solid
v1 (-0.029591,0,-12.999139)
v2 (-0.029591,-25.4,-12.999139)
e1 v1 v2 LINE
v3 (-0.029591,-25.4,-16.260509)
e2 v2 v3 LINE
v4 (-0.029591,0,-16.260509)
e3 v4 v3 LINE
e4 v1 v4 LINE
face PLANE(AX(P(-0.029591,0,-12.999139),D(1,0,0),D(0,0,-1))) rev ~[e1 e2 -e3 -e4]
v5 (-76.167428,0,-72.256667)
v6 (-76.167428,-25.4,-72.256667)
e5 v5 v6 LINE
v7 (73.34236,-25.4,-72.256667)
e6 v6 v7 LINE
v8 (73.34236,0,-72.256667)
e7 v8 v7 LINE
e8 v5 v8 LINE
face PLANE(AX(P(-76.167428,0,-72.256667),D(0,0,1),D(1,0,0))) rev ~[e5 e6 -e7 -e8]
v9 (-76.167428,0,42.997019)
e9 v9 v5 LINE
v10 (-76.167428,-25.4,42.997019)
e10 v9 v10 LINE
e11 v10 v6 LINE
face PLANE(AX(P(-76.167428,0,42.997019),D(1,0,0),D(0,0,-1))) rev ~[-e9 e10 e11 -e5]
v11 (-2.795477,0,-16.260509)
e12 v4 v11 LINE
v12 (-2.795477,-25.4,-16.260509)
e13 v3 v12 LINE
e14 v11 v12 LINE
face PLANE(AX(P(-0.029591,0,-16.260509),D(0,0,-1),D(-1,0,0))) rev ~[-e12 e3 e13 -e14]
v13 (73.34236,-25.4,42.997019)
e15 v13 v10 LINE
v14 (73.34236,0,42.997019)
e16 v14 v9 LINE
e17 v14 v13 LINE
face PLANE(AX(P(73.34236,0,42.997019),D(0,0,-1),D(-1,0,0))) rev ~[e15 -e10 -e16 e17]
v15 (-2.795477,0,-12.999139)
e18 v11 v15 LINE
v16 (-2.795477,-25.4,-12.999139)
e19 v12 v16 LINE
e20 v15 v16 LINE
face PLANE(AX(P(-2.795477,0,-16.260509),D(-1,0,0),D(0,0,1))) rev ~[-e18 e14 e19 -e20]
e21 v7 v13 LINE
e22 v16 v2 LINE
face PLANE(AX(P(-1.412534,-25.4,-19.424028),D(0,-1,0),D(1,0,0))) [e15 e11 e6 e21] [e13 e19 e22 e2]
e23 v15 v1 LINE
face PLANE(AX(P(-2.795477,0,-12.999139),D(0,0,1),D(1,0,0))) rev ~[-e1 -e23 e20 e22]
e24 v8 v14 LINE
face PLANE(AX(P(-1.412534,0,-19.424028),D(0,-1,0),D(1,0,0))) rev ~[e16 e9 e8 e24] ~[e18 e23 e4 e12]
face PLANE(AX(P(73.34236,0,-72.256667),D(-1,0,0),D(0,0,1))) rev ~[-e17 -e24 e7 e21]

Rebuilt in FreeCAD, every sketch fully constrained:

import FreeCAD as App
import Part
import Sketcher
from FreeCAD import Vector
Q = App.Units.Quantity

doc = App.newDocument("Part")
body = doc.addObject("PartDesign::Body", "Body")

# Sketch on XZ plane
sketch1 = body.newObject("Sketcher::SketchObject", "Sketch")
sketch1.AttachmentSupport = (doc.getObject("XZ_Plane"), [""])
sketch1.MapMode = "FlatFace"
sketch1.addGeometry(Part.LineSegment(Vector(73, -72, 0), Vector(73, 43, 0)), False)
sketch1.addGeometry(Part.LineSegment(Vector(73, 43, 0), Vector(-76, 43, 0)), False)
sketch1.addGeometry(Part.LineSegment(Vector(-76, 43, 0), Vector(-76, -72, 0)), False)
sketch1.addGeometry(Part.LineSegment(Vector(-76, -72, 0), Vector(73, -72, 0)), False)
sketch1.addGeometry(Part.LineSegment(Vector(-67, 33, 0), Vector(64, 33, 0)), False)
sketch1.addGeometry(Part.LineSegment(Vector(64, 33, 0), Vector(64, -62, 0)), False)
sketch1.addGeometry(Part.LineSegment(Vector(64, -62, 0), Vector(-67, -62, 0)), False)
sketch1.addGeometry(Part.LineSegment(Vector(-67, -62, 0), Vector(-67, 33, 0)), False)
sketch1.addConstraint(Sketcher.Constraint("Coincident", 0, 2, 1, 1))
sketch1.addConstraint(Sketcher.Constraint("Coincident", 1, 2, 2, 1))
sketch1.addConstraint(Sketcher.Constraint("Coincident", 2, 2, 3, 1))
sketch1.addConstraint(Sketcher.Constraint("Coincident", 3, 2, 0, 1))
sketch1.addConstraint(Sketcher.Constraint("Coincident", 4, 2, 5, 1))
sketch1.addConstraint(Sketcher.Constraint("Coincident", 5, 2, 6, 1))
sketch1.addConstraint(Sketcher.Constraint("Coincident", 6, 2, 7, 1))
sketch1.addConstraint(Sketcher.Constraint("Coincident", 7, 2, 4, 1))
sketch1.addConstraint(Sketcher.Constraint("Vertical", 0))
sketch1.addConstraint(Sketcher.Constraint("Horizontal", 1))
sketch1.addConstraint(Sketcher.Constraint("Vertical", 2))
sketch1.addConstraint(Sketcher.Constraint("Horizontal", 3))
sketch1.addConstraint(Sketcher.Constraint("Horizontal", 4))
sketch1.addConstraint(Sketcher.Constraint("Vertical", 5))
sketch1.addConstraint(Sketcher.Constraint("Horizontal", 6))
sketch1.addConstraint(Sketcher.Constraint("Vertical", 7))
sketch1.addConstraint(Sketcher.Constraint("DistanceY", 5, 2, 5, 1, Q("3.7656999 in")))
sketch1.addConstraint(Sketcher.Constraint("DistanceX", 1, 2, 1, 1, Q("149.509789 mm")))
sketch1.addConstraint(Sketcher.Constraint("DistanceX", 4, 1, 4, 2, Q("130.760355 mm")))
sketch1.addConstraint(Sketcher.Constraint("DistanceY", 0, 1, 0, 2, Q("115.253685 mm")))
sketch1.addConstraint(Sketcher.Constraint("DistanceX", -1, 1, 0, 2, Q("73.34236 mm")))
sketch1.addConstraint(Sketcher.Constraint("DistanceY", -1, 1, 0, 2, Q("42.997019 mm")))
sketch1.addConstraint(Sketcher.Constraint("DistanceX", 6, 2, -1, 1, Q("66.792711 mm")))
sketch1.addConstraint(Sketcher.Constraint("DistanceY", 3, 2, 4, 2, Q("105.451231 mm")))
pad1 = body.newObject("PartDesign::Pad", "Pad")
pad1.Profile = sketch1
pad1.Length = Q("1 in")

# Sketch on XZ plane
sketch2 = body.newObject("Sketcher::SketchObject", "Sketch001")
sketch2.AttachmentSupport = (doc.getObject("XZ_Plane"), [""])
sketch2.MapMode = "FlatFace"
sketch2.addGeometry(Part.LineSegment(Vector(64, -62, 0), Vector(64, 33, 0)), False)
sketch2.addGeometry(Part.LineSegment(Vector(64, 33, 0), Vector(-67, 33, 0)), False)
sketch2.addGeometry(Part.LineSegment(Vector(-67, 33, 0), Vector(-67, -62, 0)), False)
sketch2.addGeometry(Part.LineSegment(Vector(-67, -62, 0), Vector(64, -62, 0)), False)
sketch2.addGeometry(Part.LineSegment(Vector(-57, 24, 0), Vector(54, 24, 0)), False)
sketch2.addGeometry(Part.LineSegment(Vector(54, 24, 0), Vector(54, -53, 0)), False)
sketch2.addGeometry(Part.LineSegment(Vector(54, -53, 0), Vector(-57, -53, 0)), False)
sketch2.addGeometry(Part.LineSegment(Vector(-57, -53, 0), Vector(-57, 24, 0)), False)
sketch2.addConstraint(Sketcher.Constraint("Coincident", 0, 2, 1, 1))
sketch2.addConstraint(Sketcher.Constraint("Coincident", 1, 2, 2, 1))
sketch2.addConstraint(Sketcher.Constraint("Coincident", 2, 2, 3, 1))
sketch2.addConstraint(Sketcher.Constraint("Coincident", 3, 2, 0, 1))
sketch2.addConstraint(Sketcher.Constraint("Coincident", 4, 2, 5, 1))
sketch2.addConstraint(Sketcher.Constraint("Coincident", 5, 2, 6, 1))
sketch2.addConstraint(Sketcher.Constraint("Coincident", 6, 2, 7, 1))
sketch2.addConstraint(Sketcher.Constraint("Coincident", 7, 2, 4, 1))
sketch2.addConstraint(Sketcher.Constraint("Vertical", 0))
sketch2.addConstraint(Sketcher.Constraint("Horizontal", 1))
sketch2.addConstraint(Sketcher.Constraint("Vertical", 2))
sketch2.addConstraint(Sketcher.Constraint("Horizontal", 3))
sketch2.addConstraint(Sketcher.Constraint("Horizontal", 4))
sketch2.addConstraint(Sketcher.Constraint("Vertical", 5))
sketch2.addConstraint(Sketcher.Constraint("Horizontal", 6))
sketch2.addConstraint(Sketcher.Constraint("Vertical", 7))
sketch2.addConstraint(Sketcher.Constraint("DistanceY", 0, 1, 0, 2, Q("3.7656999 in")))
sketch2.addConstraint(Sketcher.Constraint("DistanceX", 1, 2, 1, 1, Q("130.760355 mm")))
sketch2.addConstraint(Sketcher.Constraint("DistanceX", 4, 1, 4, 2, Q("110.581284 mm")))
sketch2.addConstraint(Sketcher.Constraint("DistanceY", 5, 2, 5, 1, Q("77.084035 mm")))
sketch2.addConstraint(Sketcher.Constraint("DistanceX", 1, 2, -1, 1, Q("66.792711 mm")))
sketch2.addConstraint(Sketcher.Constraint("DistanceX", -1, 1, 4, 2, Q("53.878108 mm")))
sketch2.addConstraint(Sketcher.Constraint("DistanceY", 5, 2, -1, 1, Q("53.171841 mm")))
sketch2.addConstraint(Sketcher.Constraint("DistanceY", 4, 2, 0, 2, Q("9.282371 mm")))
pad2 = body.newObject("PartDesign::Pad", "Pad001")
pad2.Profile = sketch2
pad2.Length = Q("1 in")

# Sketch on XZ plane
sketch3 = body.newObject("Sketcher::SketchObject", "Sketch002")
sketch3.AttachmentSupport = (doc.getObject("XZ_Plane"), [""])
sketch3.MapMode = "FlatFace"
sketch3.addGeometry(Part.LineSegment(Vector(54, -53, 0), Vector(54, 24, 0)), False)
sketch3.addGeometry(Part.LineSegment(Vector(54, 24, 0), Vector(-57, 24, 0)), False)
sketch3.addGeometry(Part.LineSegment(Vector(-57, 24, 0), Vector(-57, -53, 0)), False)
sketch3.addGeometry(Part.LineSegment(Vector(-57, -53, 0), Vector(54, -53, 0)), False)
sketch3.addGeometry(Part.LineSegment(Vector(-47, 16, 0), Vector(44, 16, 0)), False)
sketch3.addGeometry(Part.LineSegment(Vector(44, 16, 0), Vector(44, -45, 0)), False)
sketch3.addGeometry(Part.LineSegment(Vector(44, -45, 0), Vector(-47, -45, 0)), False)
sketch3.addGeometry(Part.LineSegment(Vector(-47, -45, 0), Vector(-47, 16, 0)), False)
sketch3.addConstraint(Sketcher.Constraint("Coincident", 0, 2, 1, 1))
sketch3.addConstraint(Sketcher.Constraint("Coincident", 1, 2, 2, 1))
sketch3.addConstraint(Sketcher.Constraint("Coincident", 2, 2, 3, 1))
sketch3.addConstraint(Sketcher.Constraint("Coincident", 3, 2, 0, 1))
sketch3.addConstraint(Sketcher.Constraint("Coincident", 4, 2, 5, 1))
sketch3.addConstraint(Sketcher.Constraint("Coincident", 5, 2, 6, 1))
sketch3.addConstraint(Sketcher.Constraint("Coincident", 6, 2, 7, 1))
sketch3.addConstraint(Sketcher.Constraint("Coincident", 7, 2, 4, 1))
sketch3.addConstraint(Sketcher.Constraint("Vertical", 0))
sketch3.addConstraint(Sketcher.Constraint("Horizontal", 1))
sketch3.addConstraint(Sketcher.Constraint("Vertical", 2))
sketch3.addConstraint(Sketcher.Constraint("Horizontal", 3))
sketch3.addConstraint(Sketcher.Constraint("Horizontal", 4))
sketch3.addConstraint(Sketcher.Constraint("Vertical", 5))
sketch3.addConstraint(Sketcher.Constraint("Horizontal", 6))
sketch3.addConstraint(Sketcher.Constraint("Vertical", 7))
sketch3.addConstraint(Sketcher.Constraint("DistanceY", 5, 2, 5, 1, Q("60.940782 mm")))
sketch3.addConstraint(Sketcher.Constraint("DistanceX", 1, 2, 1, 1, Q("110.581284 mm")))
sketch3.addConstraint(Sketcher.Constraint("DistanceX", 4, 1, 4, 2, Q("91.209387 mm")))
sketch3.addConstraint(Sketcher.Constraint("DistanceY", 0, 1, 0, 2, Q("77.084035 mm")))
sketch3.addConstraint(Sketcher.Constraint("DistanceX", -1, 1, 0, 2, Q("53.878108 mm")))
sketch3.addConstraint(Sketcher.Constraint("DistanceY", 2, 2, -1, 1, Q("53.171841 mm")))
sketch3.addConstraint(Sketcher.Constraint("DistanceX", -1, 1, 4, 2, Q("44.19216 mm")))
sketch3.addConstraint(Sketcher.Constraint("DistanceY", 3, 2, 4, 2, Q("69.012408 mm")))
pad3 = body.newObject("PartDesign::Pad", "Pad002")
pad3.Profile = sketch3
pad3.Length = Q("1 in")

# Sketch on XZ plane
sketch4 = body.newObject("Sketcher::SketchObject", "Sketch003")
sketch4.AttachmentSupport = (doc.getObject("XZ_Plane"), [""])
sketch4.MapMode = "FlatFace"
sketch4.addGeometry(Part.LineSegment(Vector(44, -45, 0), Vector(44, 16, 0)), False)
sketch4.addGeometry(Part.LineSegment(Vector(44, 16, 0), Vector(-47, 16, 0)), False)
sketch4.addGeometry(Part.LineSegment(Vector(-47, 16, 0), Vector(-47, -45, 0)), False)
sketch4.addGeometry(Part.LineSegment(Vector(-47, -45, 0), Vector(44, -45, 0)), False)
sketch4.addGeometry(Part.LineSegment(Vector(-38, 10, 0), Vector(35, 10, 0)), False)
sketch4.addGeometry(Part.LineSegment(Vector(35, 10, 0), Vector(35, -39, 0)), False)
sketch4.addGeometry(Part.LineSegment(Vector(35, -39, 0), Vector(-38, -39, 0)), False)
sketch4.addGeometry(Part.LineSegment(Vector(-38, -39, 0), Vector(-38, 10, 0)), False)
sketch4.addConstraint(Sketcher.Constraint("Coincident", 0, 2, 1, 1))
sketch4.addConstraint(Sketcher.Constraint("Coincident", 1, 2, 2, 1))
sketch4.addConstraint(Sketcher.Constraint("Coincident", 2, 2, 3, 1))
sketch4.addConstraint(Sketcher.Constraint("Coincident", 3, 2, 0, 1))
sketch4.addConstraint(Sketcher.Constraint("Coincident", 4, 2, 5, 1))
sketch4.addConstraint(Sketcher.Constraint("Coincident", 5, 2, 6, 1))
sketch4.addConstraint(Sketcher.Constraint("Coincident", 6, 2, 7, 1))
sketch4.addConstraint(Sketcher.Constraint("Coincident", 7, 2, 4, 1))
sketch4.addConstraint(Sketcher.Constraint("Vertical", 0))
sketch4.addConstraint(Sketcher.Constraint("Horizontal", 1))
sketch4.addConstraint(Sketcher.Constraint("Vertical", 2))
sketch4.addConstraint(Sketcher.Constraint("Horizontal", 3))
sketch4.addConstraint(Sketcher.Constraint("Horizontal", 4))
sketch4.addConstraint(Sketcher.Constraint("Vertical", 5))
sketch4.addConstraint(Sketcher.Constraint("Horizontal", 6))
sketch4.addConstraint(Sketcher.Constraint("Vertical", 7))
sketch4.addConstraint(Sketcher.Constraint("DistanceX", 4, 1, 4, 2, Q("72.644642 mm")))
sketch4.addConstraint(Sketcher.Constraint("DistanceY", 0, 1, 0, 2, Q("60.940782 mm")))
sketch4.addConstraint(Sketcher.Constraint("DistanceX", 1, 2, 1, 1, Q("91.209387 mm")))
sketch4.addConstraint(Sketcher.Constraint("DistanceY", 5, 2, 5, 1, Q("48.833342 mm")))
sketch4.addConstraint(Sketcher.Constraint("DistanceX", -1, 1, 0, 2, Q("44.19216 mm")))
sketch4.addConstraint(Sketcher.Constraint("DistanceY", 4, 2, 0, 2, Q("6.05372 mm")))
sketch4.addConstraint(Sketcher.Constraint("DistanceY", -1, 1, 0, 2, Q("15.840567 mm")))
sketch4.addConstraint(Sketcher.Constraint("DistanceX", -1, 1, 4, 2, Q("34.909787 mm")))
pad4 = body.newObject("PartDesign::Pad", "Pad003")
pad4.Profile = sketch4
pad4.Length = Q("1 in")

# Sketch on XZ plane
sketch5 = body.newObject("Sketcher::SketchObject", "Sketch004")
sketch5.AttachmentSupport = (doc.getObject("XZ_Plane"), [""])
sketch5.MapMode = "FlatFace"
sketch5.addGeometry(Part.LineSegment(Vector(35, -39, 0), Vector(35, 10, 0)), False)
sketch5.addGeometry(Part.LineSegment(Vector(35, 10, 0), Vector(-38, 10, 0)), False)
sketch5.addGeometry(Part.LineSegment(Vector(-38, 10, 0), Vector(-38, -39, 0)), False)
sketch5.addGeometry(Part.LineSegment(Vector(-38, -39, 0), Vector(35, -39, 0)), False)
sketch5.addGeometry(Part.LineSegment(Vector(-23, -29, 0), Vector(-23, 0, 0)), False)
sketch5.addGeometry(Part.LineSegment(Vector(-23, 0, 0), Vector(21, 0, 0)), False)
sketch5.addGeometry(Part.LineSegment(Vector(21, 0, 0), Vector(21, -29, 0)), False)
sketch5.addGeometry(Part.LineSegment(Vector(21, -29, 0), Vector(-23, -29, 0)), False)
sketch5.addConstraint(Sketcher.Constraint("Coincident", 0, 2, 1, 1))
sketch5.addConstraint(Sketcher.Constraint("Coincident", 1, 2, 2, 1))
sketch5.addConstraint(Sketcher.Constraint("Coincident", 2, 2, 3, 1))
sketch5.addConstraint(Sketcher.Constraint("Coincident", 3, 2, 0, 1))
sketch5.addConstraint(Sketcher.Constraint("Coincident", 4, 2, 5, 1))
sketch5.addConstraint(Sketcher.Constraint("Coincident", 5, 2, 6, 1))
sketch5.addConstraint(Sketcher.Constraint("Coincident", 6, 2, 7, 1))
sketch5.addConstraint(Sketcher.Constraint("Coincident", 7, 2, 4, 1))
sketch5.addConstraint(Sketcher.Constraint("Vertical", 0))
sketch5.addConstraint(Sketcher.Constraint("Horizontal", 1))
sketch5.addConstraint(Sketcher.Constraint("Vertical", 2))
sketch5.addConstraint(Sketcher.Constraint("Horizontal", 3))
sketch5.addConstraint(Sketcher.Constraint("Vertical", 4))
sketch5.addConstraint(Sketcher.Constraint("Horizontal", 5))
sketch5.addConstraint(Sketcher.Constraint("Vertical", 6))
sketch5.addConstraint(Sketcher.Constraint("Horizontal", 7))
sketch5.addConstraint(Sketcher.Constraint("PointOnObject", 4, 2, -1))
sketch5.addConstraint(Sketcher.Constraint("DistanceX", 1, 2, 1, 1, Q("72.644642 mm")))
sketch5.addConstraint(Sketcher.Constraint("DistanceX", 5, 1, 5, 2, Q("43.915728 mm")))
sketch5.addConstraint(Sketcher.Constraint("DistanceY", 4, 1, 4, 2, Q("29.259648 mm")))
sketch5.addConstraint(Sketcher.Constraint("DistanceX", 4, 2, -1, 1, Q("23.370398 mm")))
sketch5.addConstraint(Sketcher.Constraint("DistanceY", 0, 1, 0, 2, Q("48.833342 mm")))
sketch5.addConstraint(Sketcher.Constraint("DistanceX", -1, 1, 0, 2, Q("34.909787 mm")))
sketch5.addConstraint(Sketcher.Constraint("DistanceY", -1, 1, 0, 2, Q("9.786847 mm")))
pad5 = body.newObject("PartDesign::Pad", "Pad004")
pad5.Profile = sketch5
pad5.Length = Q("1 in")

# Sketch on XZ plane
sketch6 = body.newObject("Sketcher::SketchObject", "Sketch005")
sketch6.AttachmentSupport = (doc.getObject("XZ_Plane"), [""])
sketch6.MapMode = "FlatFace"
sketch6.addGeometry(Part.LineSegment(Vector(-23, 0, 0), Vector(-23, -29, 0)), False)
sketch6.addGeometry(Part.LineSegment(Vector(-23, -29, 0), Vector(21, -29, 0)), False)
sketch6.addGeometry(Part.LineSegment(Vector(21, -29, 0), Vector(21, 0, 0)), False)
sketch6.addGeometry(Part.LineSegment(Vector(21, 0, 0), Vector(-23, 0, 0)), False)
sketch6.addGeometry(Part.LineSegment(Vector(-16, -27, 0), Vector(-16, -3, 0)), False)
sketch6.addGeometry(Part.LineSegment(Vector(-16, -3, 0), Vector(14, -3, 0)), False)
sketch6.addGeometry(Part.LineSegment(Vector(14, -3, 0), Vector(14, -27, 0)), False)
sketch6.addGeometry(Part.LineSegment(Vector(14, -27, 0), Vector(-16, -27, 0)), False)
sketch6.addConstraint(Sketcher.Constraint("Coincident", 0, 2, 1, 1))
sketch6.addConstraint(Sketcher.Constraint("Coincident", 1, 2, 2, 1))
sketch6.addConstraint(Sketcher.Constraint("Coincident", 2, 2, 3, 1))
sketch6.addConstraint(Sketcher.Constraint("Coincident", 3, 2, 0, 1))
sketch6.addConstraint(Sketcher.Constraint("Coincident", 4, 2, 5, 1))
sketch6.addConstraint(Sketcher.Constraint("Coincident", 5, 2, 6, 1))
sketch6.addConstraint(Sketcher.Constraint("Coincident", 6, 2, 7, 1))
sketch6.addConstraint(Sketcher.Constraint("Coincident", 7, 2, 4, 1))
sketch6.addConstraint(Sketcher.Constraint("Vertical", 0))
sketch6.addConstraint(Sketcher.Constraint("Horizontal", 1))
sketch6.addConstraint(Sketcher.Constraint("Vertical", 2))
sketch6.addConstraint(Sketcher.Constraint("Horizontal", 3))
sketch6.addConstraint(Sketcher.Constraint("Vertical", 4))
sketch6.addConstraint(Sketcher.Constraint("Horizontal", 5))
sketch6.addConstraint(Sketcher.Constraint("Vertical", 6))
sketch6.addConstraint(Sketcher.Constraint("Horizontal", 7))
sketch6.addConstraint(Sketcher.Constraint("PointOnObject", 2, 2, -1))
sketch6.addConstraint(Sketcher.Constraint("DistanceY", 4, 1, 4, 2, Q("24.004 mm")))
sketch6.addConstraint(Sketcher.Constraint("DistanceX", 1, 1, 1, 2, Q("43.915728 mm")))
sketch6.addConstraint(Sketcher.Constraint("DistanceX", 5, 1, 5, 2, Q("29.830382 mm")))
sketch6.addConstraint(Sketcher.Constraint("DistanceY", 0, 2, 0, 1, Q("29.259648 mm")))
sketch6.addConstraint(Sketcher.Constraint("DistanceX", 0, 2, -1, 1, Q("23.370398 mm")))
sketch6.addConstraint(Sketcher.Constraint("DistanceX", 4, 2, -1, 1, Q("16.327725 mm")))
sketch6.addConstraint(Sketcher.Constraint("DistanceY", 4, 2, -1, 1, Q("2.627824 mm")))
pad6 = body.newObject("PartDesign::Pad", "Pad005")
pad6.Profile = sketch6
pad6.Length = Q("1 in")

# Sketch on XZ plane
sketch7 = body.newObject("Sketcher::SketchObject", "Sketch006")
sketch7.AttachmentSupport = (doc.getObject("XZ_Plane"), [""])
sketch7.MapMode = "FlatFace"
sketch7.addGeometry(Part.LineSegment(Vector(-16, -3, 0), Vector(-16, -27, 0)), False)
sketch7.addGeometry(Part.LineSegment(Vector(-16, -27, 0), Vector(14, -27, 0)), False)
sketch7.addGeometry(Part.LineSegment(Vector(14, -27, 0), Vector(14, -3, 0)), False)
sketch7.addGeometry(Part.LineSegment(Vector(14, -3, 0), Vector(-16, -3, 0)), False)
sketch7.addGeometry(Part.LineSegment(Vector(-8, -21, 0), Vector(-8, -8, 0)), False)
sketch7.addGeometry(Part.LineSegment(Vector(-8, -8, 0), Vector(5, -8, 0)), False)
sketch7.addGeometry(Part.LineSegment(Vector(5, -8, 0), Vector(5, -21, 0)), False)
sketch7.addGeometry(Part.LineSegment(Vector(5, -21, 0), Vector(-8, -21, 0)), False)
sketch7.addConstraint(Sketcher.Constraint("Coincident", 0, 2, 1, 1))
sketch7.addConstraint(Sketcher.Constraint("Coincident", 1, 2, 2, 1))
sketch7.addConstraint(Sketcher.Constraint("Coincident", 2, 2, 3, 1))
sketch7.addConstraint(Sketcher.Constraint("Coincident", 3, 2, 0, 1))
sketch7.addConstraint(Sketcher.Constraint("Coincident", 4, 2, 5, 1))
sketch7.addConstraint(Sketcher.Constraint("Coincident", 5, 2, 6, 1))
sketch7.addConstraint(Sketcher.Constraint("Coincident", 6, 2, 7, 1))
sketch7.addConstraint(Sketcher.Constraint("Coincident", 7, 2, 4, 1))
sketch7.addConstraint(Sketcher.Constraint("Vertical", 0))
sketch7.addConstraint(Sketcher.Constraint("Horizontal", 1))
sketch7.addConstraint(Sketcher.Constraint("Vertical", 2))
sketch7.addConstraint(Sketcher.Constraint("Horizontal", 3))
sketch7.addConstraint(Sketcher.Constraint("Vertical", 4))
sketch7.addConstraint(Sketcher.Constraint("Horizontal", 5))
sketch7.addConstraint(Sketcher.Constraint("Vertical", 6))
sketch7.addConstraint(Sketcher.Constraint("Horizontal", 7))
sketch7.addConstraint(Sketcher.Constraint("DistanceX", 4, 2, -1, 1, Q("0.3079999 in")))
sketch7.addConstraint(Sketcher.Constraint("DistanceY", 0, 2, 0, 1, Q("24.004 mm")))
sketch7.addConstraint(Sketcher.Constraint("DistanceX", 1, 1, 1, 2, Q("29.830382 mm")))
sketch7.addConstraint(Sketcher.Constraint("DistanceX", 5, 1, 5, 2, Q("12.821328 mm")))
sketch7.addConstraint(Sketcher.Constraint("DistanceY", 4, 1, 4, 2, Q("12.688057 mm")))
sketch7.addConstraint(Sketcher.Constraint("DistanceY", 4, 2, 3, 2, Q("5.657971 mm")))
sketch7.addConstraint(Sketcher.Constraint("DistanceX", 0, 2, -1, 1, Q("16.327725 mm")))
sketch7.addConstraint(Sketcher.Constraint("DistanceY", 0, 2, -1, 1, Q("26.631824 mm")))
pad7 = body.newObject("PartDesign::Pad", "Pad006")
pad7.Profile = sketch7
pad7.Length = Q("1 in")

# Sketch on XZ plane
sketch8 = body.newObject("Sketcher::SketchObject", "Sketch007")
sketch8.AttachmentSupport = (doc.getObject("XZ_Plane"), [""])
sketch8.MapMode = "FlatFace"
sketch8.addGeometry(Part.LineSegment(Vector(-7.8, -21, 0), Vector(5, -21, 0)), False)
sketch8.addGeometry(Part.LineSegment(Vector(5, -21, 0), Vector(5, -8.3, 0)), False)
sketch8.addGeometry(Part.LineSegment(Vector(5, -8.3, 0), Vector(-7.8, -8.3, 0)), False)
sketch8.addGeometry(Part.LineSegment(Vector(-7.8, -8.3, 0), Vector(-7.8, -21, 0)), False)
sketch8.addGeometry(Part.LineSegment(Vector(0, -16.3, 0), Vector(-2.8, -16.3, 0)), False)
sketch8.addGeometry(Part.LineSegment(Vector(-2.8, -16.3, 0), Vector(-2.8, -13, 0)), False)
sketch8.addGeometry(Part.LineSegment(Vector(-2.8, -13, 0), Vector(0, -13, 0)), False)
sketch8.addGeometry(Part.LineSegment(Vector(0, -13, 0), Vector(0, -16.3, 0)), False)
sketch8.addConstraint(Sketcher.Constraint("Coincident", 0, 2, 1, 1))
sketch8.addConstraint(Sketcher.Constraint("Coincident", 1, 2, 2, 1))
sketch8.addConstraint(Sketcher.Constraint("Coincident", 2, 2, 3, 1))
sketch8.addConstraint(Sketcher.Constraint("Coincident", 3, 2, 0, 1))
sketch8.addConstraint(Sketcher.Constraint("Coincident", 4, 2, 5, 1))
sketch8.addConstraint(Sketcher.Constraint("Coincident", 5, 2, 6, 1))
sketch8.addConstraint(Sketcher.Constraint("Coincident", 6, 2, 7, 1))
sketch8.addConstraint(Sketcher.Constraint("Coincident", 7, 2, 4, 1))
sketch8.addConstraint(Sketcher.Constraint("Horizontal", 0))
sketch8.addConstraint(Sketcher.Constraint("Vertical", 1))
sketch8.addConstraint(Sketcher.Constraint("Horizontal", 2))
sketch8.addConstraint(Sketcher.Constraint("Vertical", 3))
sketch8.addConstraint(Sketcher.Constraint("Horizontal", 4))
sketch8.addConstraint(Sketcher.Constraint("Vertical", 5))
sketch8.addConstraint(Sketcher.Constraint("Horizontal", 6))
sketch8.addConstraint(Sketcher.Constraint("Vertical", 7))
sketch8.addConstraint(Sketcher.Constraint("DistanceX", 2, 2, -1, 1, Q("0.3079999 in")))
sketch8.addConstraint(Sketcher.Constraint("DistanceY", 5, 1, 5, 2, Q("3.26137 mm")))
sketch8.addConstraint(Sketcher.Constraint("DistanceX", 0, 1, 0, 2, Q("12.821328 mm")))
sketch8.addConstraint(Sketcher.Constraint("DistanceX", 4, 2, 4, 1, Q("2.765886 mm")))
sketch8.addConstraint(Sketcher.Constraint("DistanceY", 1, 1, 1, 2, Q("12.688057 mm")))
sketch8.addConstraint(Sketcher.Constraint("DistanceY", 4, 2, -1, 1, Q("16.260509 mm")))
sketch8.addConstraint(Sketcher.Constraint("DistanceX", 6, 2, -1, 1, Q("0.029591 mm")))
sketch8.addConstraint(Sketcher.Constraint("DistanceY", 0, 2, -1, 1, Q("20.973853 mm")))
pad8 = body.newObject("PartDesign::Pad", "Pad007")
pad8.Profile = sketch8
pad8.Length = Q("1 in")

doc.recompute()
